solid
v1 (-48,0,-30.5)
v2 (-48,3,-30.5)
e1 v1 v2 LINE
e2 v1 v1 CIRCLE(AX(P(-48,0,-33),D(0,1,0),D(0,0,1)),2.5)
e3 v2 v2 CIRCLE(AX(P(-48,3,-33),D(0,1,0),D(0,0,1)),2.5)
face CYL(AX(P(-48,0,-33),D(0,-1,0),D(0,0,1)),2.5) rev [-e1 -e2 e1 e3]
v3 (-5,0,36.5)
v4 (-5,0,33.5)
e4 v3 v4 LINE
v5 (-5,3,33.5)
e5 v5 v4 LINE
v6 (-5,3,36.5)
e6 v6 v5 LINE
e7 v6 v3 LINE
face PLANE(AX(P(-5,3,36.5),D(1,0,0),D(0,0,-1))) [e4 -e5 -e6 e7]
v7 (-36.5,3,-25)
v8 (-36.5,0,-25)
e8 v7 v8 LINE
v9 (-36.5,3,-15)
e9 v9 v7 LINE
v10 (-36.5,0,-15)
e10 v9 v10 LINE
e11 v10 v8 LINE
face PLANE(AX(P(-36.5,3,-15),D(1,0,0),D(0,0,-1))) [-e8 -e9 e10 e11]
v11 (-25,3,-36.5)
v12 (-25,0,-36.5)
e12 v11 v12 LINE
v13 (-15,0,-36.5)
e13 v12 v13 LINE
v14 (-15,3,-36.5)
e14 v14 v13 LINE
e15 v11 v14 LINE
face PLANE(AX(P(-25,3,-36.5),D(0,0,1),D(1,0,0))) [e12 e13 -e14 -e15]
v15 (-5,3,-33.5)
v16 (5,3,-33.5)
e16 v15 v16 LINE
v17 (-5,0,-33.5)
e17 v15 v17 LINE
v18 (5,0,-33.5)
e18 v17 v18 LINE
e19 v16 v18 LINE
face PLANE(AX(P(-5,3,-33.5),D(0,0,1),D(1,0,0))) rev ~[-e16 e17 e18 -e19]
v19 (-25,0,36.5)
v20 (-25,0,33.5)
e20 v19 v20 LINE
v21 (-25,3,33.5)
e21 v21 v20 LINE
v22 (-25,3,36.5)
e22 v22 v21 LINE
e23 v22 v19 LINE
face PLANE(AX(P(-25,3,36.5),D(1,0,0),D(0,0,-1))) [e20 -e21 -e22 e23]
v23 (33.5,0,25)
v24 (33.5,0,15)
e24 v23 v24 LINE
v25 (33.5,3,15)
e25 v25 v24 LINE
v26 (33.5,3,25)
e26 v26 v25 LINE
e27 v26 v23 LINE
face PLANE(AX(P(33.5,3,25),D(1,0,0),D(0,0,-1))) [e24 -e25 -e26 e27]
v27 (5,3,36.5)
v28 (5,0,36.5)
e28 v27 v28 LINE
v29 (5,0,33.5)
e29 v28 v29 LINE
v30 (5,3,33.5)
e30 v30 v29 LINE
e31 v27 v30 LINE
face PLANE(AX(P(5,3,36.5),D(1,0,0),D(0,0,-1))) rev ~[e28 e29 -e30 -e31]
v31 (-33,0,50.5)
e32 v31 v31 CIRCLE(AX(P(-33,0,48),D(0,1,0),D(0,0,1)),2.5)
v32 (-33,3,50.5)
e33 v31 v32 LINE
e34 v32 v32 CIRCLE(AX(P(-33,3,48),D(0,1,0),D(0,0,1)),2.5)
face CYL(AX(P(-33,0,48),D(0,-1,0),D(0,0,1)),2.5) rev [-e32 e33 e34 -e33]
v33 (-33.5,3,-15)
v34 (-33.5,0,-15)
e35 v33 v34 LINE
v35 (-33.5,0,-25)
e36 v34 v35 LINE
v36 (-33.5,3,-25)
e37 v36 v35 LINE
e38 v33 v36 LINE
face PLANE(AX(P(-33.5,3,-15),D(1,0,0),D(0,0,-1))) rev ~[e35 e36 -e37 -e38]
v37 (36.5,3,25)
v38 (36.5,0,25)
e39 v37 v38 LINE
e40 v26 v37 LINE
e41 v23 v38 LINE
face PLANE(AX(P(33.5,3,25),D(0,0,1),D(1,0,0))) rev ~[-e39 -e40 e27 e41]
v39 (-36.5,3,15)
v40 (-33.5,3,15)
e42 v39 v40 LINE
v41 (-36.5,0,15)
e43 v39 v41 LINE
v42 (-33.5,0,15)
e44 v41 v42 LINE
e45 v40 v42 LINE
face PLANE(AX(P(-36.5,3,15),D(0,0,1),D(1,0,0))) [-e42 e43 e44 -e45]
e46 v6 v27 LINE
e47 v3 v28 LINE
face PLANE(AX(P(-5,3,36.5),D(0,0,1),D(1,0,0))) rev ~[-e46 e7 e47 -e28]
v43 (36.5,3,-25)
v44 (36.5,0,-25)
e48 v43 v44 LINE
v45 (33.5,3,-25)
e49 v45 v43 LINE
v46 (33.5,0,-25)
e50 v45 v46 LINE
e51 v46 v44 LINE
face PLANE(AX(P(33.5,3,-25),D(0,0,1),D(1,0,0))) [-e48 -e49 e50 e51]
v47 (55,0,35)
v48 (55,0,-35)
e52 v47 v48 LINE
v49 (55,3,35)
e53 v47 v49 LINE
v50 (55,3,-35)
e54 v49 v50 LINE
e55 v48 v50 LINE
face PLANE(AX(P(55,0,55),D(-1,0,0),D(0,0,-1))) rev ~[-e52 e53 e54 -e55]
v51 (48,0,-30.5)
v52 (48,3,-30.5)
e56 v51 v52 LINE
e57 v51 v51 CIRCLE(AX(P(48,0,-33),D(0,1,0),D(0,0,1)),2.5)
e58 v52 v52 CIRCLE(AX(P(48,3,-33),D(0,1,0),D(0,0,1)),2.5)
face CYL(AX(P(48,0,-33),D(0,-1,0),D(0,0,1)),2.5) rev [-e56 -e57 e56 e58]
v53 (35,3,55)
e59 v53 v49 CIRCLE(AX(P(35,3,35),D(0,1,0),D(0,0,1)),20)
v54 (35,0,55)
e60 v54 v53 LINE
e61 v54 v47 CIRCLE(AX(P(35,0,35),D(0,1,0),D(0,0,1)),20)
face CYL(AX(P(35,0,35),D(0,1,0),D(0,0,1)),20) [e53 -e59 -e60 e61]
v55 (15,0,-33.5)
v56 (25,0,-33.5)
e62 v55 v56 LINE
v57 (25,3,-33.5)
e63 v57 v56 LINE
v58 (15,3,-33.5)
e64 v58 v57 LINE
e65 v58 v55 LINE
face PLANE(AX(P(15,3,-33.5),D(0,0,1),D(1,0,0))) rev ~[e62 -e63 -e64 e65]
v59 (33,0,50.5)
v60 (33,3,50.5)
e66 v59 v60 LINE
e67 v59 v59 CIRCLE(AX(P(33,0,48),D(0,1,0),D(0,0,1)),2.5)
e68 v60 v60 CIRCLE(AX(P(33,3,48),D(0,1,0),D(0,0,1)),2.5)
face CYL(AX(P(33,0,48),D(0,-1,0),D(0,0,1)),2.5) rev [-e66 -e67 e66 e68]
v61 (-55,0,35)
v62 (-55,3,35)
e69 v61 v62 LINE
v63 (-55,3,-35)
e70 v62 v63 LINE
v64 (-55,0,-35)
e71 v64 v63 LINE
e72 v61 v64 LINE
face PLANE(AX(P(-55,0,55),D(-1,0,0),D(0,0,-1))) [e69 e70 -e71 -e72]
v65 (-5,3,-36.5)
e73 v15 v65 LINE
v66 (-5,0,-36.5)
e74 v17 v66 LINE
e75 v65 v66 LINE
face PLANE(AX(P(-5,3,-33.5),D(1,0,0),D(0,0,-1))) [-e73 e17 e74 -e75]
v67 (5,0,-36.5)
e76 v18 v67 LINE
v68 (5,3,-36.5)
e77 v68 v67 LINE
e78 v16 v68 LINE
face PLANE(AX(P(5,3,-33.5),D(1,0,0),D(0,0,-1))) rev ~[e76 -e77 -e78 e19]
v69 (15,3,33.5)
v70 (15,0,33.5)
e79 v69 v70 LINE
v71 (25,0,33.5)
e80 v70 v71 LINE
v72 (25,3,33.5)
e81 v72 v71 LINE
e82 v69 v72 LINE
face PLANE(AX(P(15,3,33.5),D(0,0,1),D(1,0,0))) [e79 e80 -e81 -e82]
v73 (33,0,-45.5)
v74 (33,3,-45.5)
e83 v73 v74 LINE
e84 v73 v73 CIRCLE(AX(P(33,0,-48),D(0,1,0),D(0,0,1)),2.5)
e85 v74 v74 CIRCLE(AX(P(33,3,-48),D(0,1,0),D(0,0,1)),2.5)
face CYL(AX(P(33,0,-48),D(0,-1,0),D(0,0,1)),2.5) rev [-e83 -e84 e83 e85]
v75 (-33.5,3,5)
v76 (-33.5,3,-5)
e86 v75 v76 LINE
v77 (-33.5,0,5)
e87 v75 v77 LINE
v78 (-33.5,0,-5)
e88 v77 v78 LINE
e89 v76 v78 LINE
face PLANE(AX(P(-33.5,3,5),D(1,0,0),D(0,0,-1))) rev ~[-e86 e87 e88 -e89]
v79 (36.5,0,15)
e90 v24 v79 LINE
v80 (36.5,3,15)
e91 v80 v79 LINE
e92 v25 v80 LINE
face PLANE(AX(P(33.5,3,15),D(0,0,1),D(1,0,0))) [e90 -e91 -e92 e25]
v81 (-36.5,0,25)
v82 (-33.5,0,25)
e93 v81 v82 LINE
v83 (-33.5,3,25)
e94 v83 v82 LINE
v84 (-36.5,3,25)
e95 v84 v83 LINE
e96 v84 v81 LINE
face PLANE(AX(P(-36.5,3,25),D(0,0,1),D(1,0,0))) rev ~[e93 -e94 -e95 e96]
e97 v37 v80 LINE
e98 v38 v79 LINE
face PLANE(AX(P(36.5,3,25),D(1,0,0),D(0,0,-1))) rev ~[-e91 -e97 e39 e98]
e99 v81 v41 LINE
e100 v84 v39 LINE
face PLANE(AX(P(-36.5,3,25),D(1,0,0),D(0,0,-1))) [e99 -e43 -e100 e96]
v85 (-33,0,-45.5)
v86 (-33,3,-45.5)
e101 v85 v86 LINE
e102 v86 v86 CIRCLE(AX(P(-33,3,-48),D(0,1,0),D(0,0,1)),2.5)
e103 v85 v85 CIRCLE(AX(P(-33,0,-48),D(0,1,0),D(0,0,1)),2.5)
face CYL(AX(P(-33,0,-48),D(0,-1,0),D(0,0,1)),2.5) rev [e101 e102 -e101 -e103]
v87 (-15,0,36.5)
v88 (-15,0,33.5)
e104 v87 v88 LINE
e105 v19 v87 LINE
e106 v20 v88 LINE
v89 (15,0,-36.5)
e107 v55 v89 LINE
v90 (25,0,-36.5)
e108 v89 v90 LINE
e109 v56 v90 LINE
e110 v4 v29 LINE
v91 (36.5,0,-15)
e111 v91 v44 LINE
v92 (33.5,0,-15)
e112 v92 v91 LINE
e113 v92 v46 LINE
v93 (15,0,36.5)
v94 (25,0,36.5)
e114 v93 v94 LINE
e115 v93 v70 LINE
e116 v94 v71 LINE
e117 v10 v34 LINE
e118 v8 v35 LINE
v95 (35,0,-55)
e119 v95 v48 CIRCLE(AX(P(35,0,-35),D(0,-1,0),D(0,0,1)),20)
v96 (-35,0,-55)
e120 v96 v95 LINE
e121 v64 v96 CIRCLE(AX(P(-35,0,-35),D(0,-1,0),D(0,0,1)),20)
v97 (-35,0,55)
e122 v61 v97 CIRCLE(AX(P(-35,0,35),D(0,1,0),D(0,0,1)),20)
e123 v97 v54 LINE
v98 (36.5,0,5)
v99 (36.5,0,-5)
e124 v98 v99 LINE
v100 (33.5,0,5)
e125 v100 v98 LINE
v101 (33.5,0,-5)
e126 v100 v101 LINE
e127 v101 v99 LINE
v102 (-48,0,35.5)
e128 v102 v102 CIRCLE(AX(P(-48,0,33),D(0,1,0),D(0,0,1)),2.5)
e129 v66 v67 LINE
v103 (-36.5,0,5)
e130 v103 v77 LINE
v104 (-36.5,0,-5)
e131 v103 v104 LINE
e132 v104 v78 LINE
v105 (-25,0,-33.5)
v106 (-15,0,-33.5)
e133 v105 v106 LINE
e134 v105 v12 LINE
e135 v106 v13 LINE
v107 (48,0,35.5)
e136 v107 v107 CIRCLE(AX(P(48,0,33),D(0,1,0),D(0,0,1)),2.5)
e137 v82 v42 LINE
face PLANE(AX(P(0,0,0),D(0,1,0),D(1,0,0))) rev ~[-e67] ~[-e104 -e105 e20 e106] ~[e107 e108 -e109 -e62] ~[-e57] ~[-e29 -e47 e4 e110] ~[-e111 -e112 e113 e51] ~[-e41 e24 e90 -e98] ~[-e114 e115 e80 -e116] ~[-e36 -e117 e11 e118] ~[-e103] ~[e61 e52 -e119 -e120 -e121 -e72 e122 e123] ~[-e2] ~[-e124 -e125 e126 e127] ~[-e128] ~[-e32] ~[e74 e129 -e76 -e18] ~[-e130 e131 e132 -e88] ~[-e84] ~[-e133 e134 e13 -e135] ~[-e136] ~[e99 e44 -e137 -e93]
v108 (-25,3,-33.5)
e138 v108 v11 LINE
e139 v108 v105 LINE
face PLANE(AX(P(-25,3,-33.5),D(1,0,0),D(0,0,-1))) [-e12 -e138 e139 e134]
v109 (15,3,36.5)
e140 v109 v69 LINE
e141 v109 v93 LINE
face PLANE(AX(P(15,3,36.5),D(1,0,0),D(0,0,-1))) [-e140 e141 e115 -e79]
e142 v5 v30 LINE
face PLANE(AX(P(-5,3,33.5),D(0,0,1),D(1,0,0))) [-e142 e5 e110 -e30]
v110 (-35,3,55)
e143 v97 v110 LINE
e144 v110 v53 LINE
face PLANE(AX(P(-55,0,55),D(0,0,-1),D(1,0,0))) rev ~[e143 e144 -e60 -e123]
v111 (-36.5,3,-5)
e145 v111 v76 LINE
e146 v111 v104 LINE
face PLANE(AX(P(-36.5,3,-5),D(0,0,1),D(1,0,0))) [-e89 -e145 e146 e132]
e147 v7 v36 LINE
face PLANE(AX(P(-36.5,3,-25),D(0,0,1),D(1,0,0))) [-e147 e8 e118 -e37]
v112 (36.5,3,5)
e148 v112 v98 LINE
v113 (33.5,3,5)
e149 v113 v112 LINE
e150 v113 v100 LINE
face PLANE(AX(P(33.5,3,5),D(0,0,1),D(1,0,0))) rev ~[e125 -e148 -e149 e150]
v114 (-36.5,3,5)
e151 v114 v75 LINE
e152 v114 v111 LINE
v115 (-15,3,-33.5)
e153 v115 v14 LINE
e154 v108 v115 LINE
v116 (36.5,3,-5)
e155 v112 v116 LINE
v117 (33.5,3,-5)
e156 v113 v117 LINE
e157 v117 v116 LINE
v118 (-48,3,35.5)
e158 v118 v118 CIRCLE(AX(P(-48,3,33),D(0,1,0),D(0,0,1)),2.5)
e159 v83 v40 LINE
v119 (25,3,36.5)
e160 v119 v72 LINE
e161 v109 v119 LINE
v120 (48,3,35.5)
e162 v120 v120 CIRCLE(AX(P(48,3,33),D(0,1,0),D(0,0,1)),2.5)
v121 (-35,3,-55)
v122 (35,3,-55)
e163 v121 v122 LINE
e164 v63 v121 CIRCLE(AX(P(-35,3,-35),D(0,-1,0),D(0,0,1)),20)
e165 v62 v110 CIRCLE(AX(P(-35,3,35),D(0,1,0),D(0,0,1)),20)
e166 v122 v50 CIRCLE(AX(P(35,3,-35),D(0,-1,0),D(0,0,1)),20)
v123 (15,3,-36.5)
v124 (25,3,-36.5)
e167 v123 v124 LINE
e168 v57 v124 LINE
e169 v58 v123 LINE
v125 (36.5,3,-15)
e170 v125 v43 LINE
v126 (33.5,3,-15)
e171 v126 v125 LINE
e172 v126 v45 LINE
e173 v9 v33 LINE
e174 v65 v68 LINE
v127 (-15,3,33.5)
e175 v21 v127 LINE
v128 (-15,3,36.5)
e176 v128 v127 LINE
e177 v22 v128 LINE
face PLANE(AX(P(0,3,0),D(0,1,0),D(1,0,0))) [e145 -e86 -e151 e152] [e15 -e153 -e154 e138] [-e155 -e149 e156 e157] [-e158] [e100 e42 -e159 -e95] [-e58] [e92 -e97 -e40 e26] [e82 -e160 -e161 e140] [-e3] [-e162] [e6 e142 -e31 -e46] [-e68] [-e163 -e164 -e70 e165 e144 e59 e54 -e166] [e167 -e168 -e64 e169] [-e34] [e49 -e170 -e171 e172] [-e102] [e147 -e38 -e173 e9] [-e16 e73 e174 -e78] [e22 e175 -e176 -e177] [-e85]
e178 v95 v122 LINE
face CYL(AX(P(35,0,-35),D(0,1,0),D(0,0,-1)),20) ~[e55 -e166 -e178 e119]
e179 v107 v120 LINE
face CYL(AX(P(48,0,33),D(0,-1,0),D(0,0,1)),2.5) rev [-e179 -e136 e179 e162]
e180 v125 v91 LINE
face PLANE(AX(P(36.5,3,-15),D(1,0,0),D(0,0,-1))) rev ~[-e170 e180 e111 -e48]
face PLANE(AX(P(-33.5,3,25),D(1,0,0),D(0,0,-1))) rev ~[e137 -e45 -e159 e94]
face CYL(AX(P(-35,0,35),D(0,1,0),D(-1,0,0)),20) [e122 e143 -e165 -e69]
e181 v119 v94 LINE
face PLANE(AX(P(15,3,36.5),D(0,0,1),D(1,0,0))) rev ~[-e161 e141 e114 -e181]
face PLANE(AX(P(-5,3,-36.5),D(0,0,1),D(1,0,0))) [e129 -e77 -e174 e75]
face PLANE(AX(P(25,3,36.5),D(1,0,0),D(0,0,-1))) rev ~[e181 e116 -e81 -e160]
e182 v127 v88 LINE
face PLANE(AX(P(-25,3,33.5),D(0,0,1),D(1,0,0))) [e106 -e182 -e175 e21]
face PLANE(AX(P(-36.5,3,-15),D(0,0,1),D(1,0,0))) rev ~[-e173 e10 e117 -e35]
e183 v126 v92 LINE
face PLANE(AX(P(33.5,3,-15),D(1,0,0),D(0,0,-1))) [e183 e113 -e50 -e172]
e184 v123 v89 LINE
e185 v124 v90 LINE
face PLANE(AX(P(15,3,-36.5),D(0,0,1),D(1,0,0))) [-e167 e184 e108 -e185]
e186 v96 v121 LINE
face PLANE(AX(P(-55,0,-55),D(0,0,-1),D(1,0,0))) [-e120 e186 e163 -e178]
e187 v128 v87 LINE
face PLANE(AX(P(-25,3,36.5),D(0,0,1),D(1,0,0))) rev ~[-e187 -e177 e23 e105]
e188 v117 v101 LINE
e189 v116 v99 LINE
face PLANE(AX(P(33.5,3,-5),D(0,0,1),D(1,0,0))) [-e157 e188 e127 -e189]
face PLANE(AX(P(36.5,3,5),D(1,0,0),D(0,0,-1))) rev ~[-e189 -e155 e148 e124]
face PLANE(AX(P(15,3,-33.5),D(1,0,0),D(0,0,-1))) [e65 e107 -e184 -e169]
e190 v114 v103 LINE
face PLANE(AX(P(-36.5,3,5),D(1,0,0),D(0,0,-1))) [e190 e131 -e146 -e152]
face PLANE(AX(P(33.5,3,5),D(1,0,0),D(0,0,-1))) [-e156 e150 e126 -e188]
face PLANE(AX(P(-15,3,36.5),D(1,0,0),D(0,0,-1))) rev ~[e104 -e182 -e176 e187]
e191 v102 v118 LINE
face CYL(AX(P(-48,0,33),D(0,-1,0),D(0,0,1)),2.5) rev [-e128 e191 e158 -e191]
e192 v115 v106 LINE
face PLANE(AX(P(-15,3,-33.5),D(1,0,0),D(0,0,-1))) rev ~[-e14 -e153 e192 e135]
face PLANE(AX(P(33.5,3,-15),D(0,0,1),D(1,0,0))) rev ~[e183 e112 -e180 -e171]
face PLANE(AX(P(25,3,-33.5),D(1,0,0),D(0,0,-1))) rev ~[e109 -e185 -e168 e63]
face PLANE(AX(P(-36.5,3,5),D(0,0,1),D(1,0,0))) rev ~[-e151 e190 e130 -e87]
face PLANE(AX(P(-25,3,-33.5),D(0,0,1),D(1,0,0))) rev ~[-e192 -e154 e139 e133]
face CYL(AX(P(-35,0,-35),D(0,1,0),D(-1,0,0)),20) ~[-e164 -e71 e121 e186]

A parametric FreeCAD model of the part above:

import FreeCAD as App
import Part
import Sketcher
from FreeCAD import Vector


def edges_at(feature, points):
    """Names of the edges that pass closest to the given points."""
    edges = feature.Shape.Edges
    near = lambda p: min(range(len(edges)), key=lambda i: edges[i].distToShape(Part.Vertex(*p))[0])
    return sorted({f"Edge{near(p) + 1}" for p in points})


def add_polygon(sketch, points):
    """Adds a closed chain of lines whose ends are joined by coincident constraints."""
    first, n = sketch.GeometryCount, len(points)
    for a, b in zip(points, points[1:] + points[:1]):
        sketch.addGeometry(Part.LineSegment(App.Vector(*a, 0), App.Vector(*b, 0)), False)
    for i in range(n):
        sketch.addConstraint(Sketcher.Constraint("Coincident", first + i, 2, first + (i + 1) % n, 1))

doc = App.newDocument("Part")
body = doc.addObject("PartDesign::Body", "Body")

# Sketch on XZ plane
sketch1 = body.newObject("Sketcher::SketchObject", "Sketch")
sketch1.AttachmentSupport = (doc.getObject("XZ_Plane"), [""])
sketch1.MapMode = "FlatFace"
add_polygon(sketch1, [(-55, -55), (-55, 55), (55, 55), (55, -55)])  # lines 0-3
sketch1.addGeometry(Part.Circle(Vector(-33, 48, 0), Vector(0, 0, 1), 2.5), False)  # 4
sketch1.addGeometry(Part.Circle(Vector(-48, 33, 0), Vector(0, 0, 1), 2.5), False)  # 5
sketch1.addGeometry(Part.Circle(Vector(33, 48, 0), Vector(0, 0, 1), 2.5), False)  # 6
sketch1.addGeometry(Part.Circle(Vector(48, 33, 0), Vector(0, 0, 1), 2.5), False)  # 7
sketch1.addGeometry(Part.Circle(Vector(-48, -33, 0), Vector(0, 0, 1), 2.5), False)  # 8
sketch1.addGeometry(Part.Circle(Vector(-33, -48, 0), Vector(0, 0, 1), 2.5), False)  # 9
sketch1.addGeometry(Part.Circle(Vector(48, -33, 0), Vector(0, 0, 1), 2.5), False)  # 10
sketch1.addGeometry(Part.Circle(Vector(33, -48, 0), Vector(0, 0, 1), 2.5), False)  # 11
sketch1.addConstraint([
    Sketcher.Constraint("Vertical", 0),
    Sketcher.Constraint("Horizontal", 1),
    Sketcher.Constraint("Vertical", 2),
    Sketcher.Constraint("Horizontal", 3),
    Sketcher.Constraint("Equal", 4, 5),
    Sketcher.Constraint("Equal", 5, 6),
    Sketcher.Constraint("Equal", 6, 7),
    Sketcher.Constraint("Equal", 7, 8),
    Sketcher.Constraint("Equal", 8, 9),
    Sketcher.Constraint("Equal", 9, 10),
    Sketcher.Constraint("Equal", 10, 11),
    Sketcher.Constraint("Symmetric", 7, 3, 8, 3, -1, 1),
    Sketcher.Constraint("Symmetric", 6, 3, 9, 3, -1, 1),
    Sketcher.Constraint("Symmetric", 5, 3, 10, 3, -1, 1),
    Sketcher.Constraint("Symmetric", 4, 3, 11, 3, -1, 1),
    Sketcher.Constraint("Symmetric", 0, 2, 2, 2, -1, 1),
    Sketcher.Constraint("Symmetric", 4, 3, 6, 3, -2),
    Sketcher.Constraint("Symmetric", 5, 3, 7, 3, -2),
    Sketcher.Constraint("Equal", 3, 0),
    Sketcher.Constraint("Diameter", 4, 5.0),
    Sketcher.Constraint("DistanceX", 1, 1, 1, 2, 110.0),
    Sketcher.Constraint("DistanceX", 4, 3, -1, 1, 33.0),
    Sketcher.Constraint("DistanceY", -1, 1, 4, 3, 48.0),
    Sketcher.Constraint("DistanceX", 5, 3, -1, 1, 48.0),
    Sketcher.Constraint("DistanceY", -1, 1, 5, 3, 33.0),
])
pad1 = body.newObject("PartDesign::Pad", "Pad")
pad1.Profile = sketch1
pad1.Length = 3
pad1.Reversed = True
doc.recompute()

fillet = body.newObject("PartDesign::Fillet", "Fillet")
fillet.Base = (pad1, edges_at(pad1, [
    (55, 1.5, 55),
    (-55, 1.5, 55),
    (-55, 1.5, -55),
    (55, 1.5, -55),
]))
fillet.Radius = 20

# Sketch on XZ plane
sketch2 = body.newObject("Sketcher::SketchObject", "Sketch001")
sketch2.AttachmentSupport = (doc.getObject("XZ_Plane"), [""])
sketch2.MapMode = "FlatFace"
sketch2.AttachmentOffset = App.Placement(Vector(0, 0, -3), App.Rotation())
add_polygon(sketch2, [(-36.5, 15), (-36.5, 25), (-33.5, 25), (-33.5, 15)])  # lines 0-3
add_polygon(sketch2, [(-36.5, -5), (-36.5, 5), (-33.5, 5), (-33.5, -5)])  # lines 4-7
add_polygon(sketch2, [(-25, -36.5), (-25, -33.5), (-15, -33.5), (-15, -36.5)])  # lines 8-11
add_polygon(sketch2, [(-5, -36.5), (-5, -33.5), (5, -33.5), (5, -36.5)])  # lines 12-15
add_polygon(sketch2, [(15, -36.5), (15, -33.5), (25, -33.5), (25, -36.5)])  # lines 16-19
add_polygon(sketch2, [(33.5, -25), (33.5, -15), (36.5, -15), (36.5, -25)])  # lines 20-23
add_polygon(sketch2, [(33.5, -5), (33.5, 5), (36.5, 5), (36.5, -5)])  # lines 24-27
add_polygon(sketch2, [(33.5, 15), (33.5, 25), (36.5, 25), (36.5, 15)])  # lines 28-31
add_polygon(sketch2, [(15, 33.5), (15, 36.5), (25, 36.5), (25, 33.5)])  # lines 32-35
add_polygon(sketch2, [(-5, 33.5), (-5, 36.5), (5, 36.5), (5, 33.5)])  # lines 36-39
add_polygon(sketch2, [(-25, 33.5), (-25, 36.5), (-15, 36.5), (-15, 33.5)])  # lines 40-43
add_polygon(sketch2, [(-36.5, -25), (-36.5, -15), (-33.5, -15), (-33.5, -25)])  # lines 44-47
sketch2.addConstraint([
    Sketcher.Constraint("Vertical", 0),
    Sketcher.Constraint("Horizontal", 1),
    Sketcher.Constraint("Vertical", 2),
    Sketcher.Constraint("Horizontal", 3),
    Sketcher.Constraint("Vertical", 4),
    Sketcher.Constraint("Horizontal", 5),
    Sketcher.Constraint("Vertical", 6),
    Sketcher.Constraint("Horizontal", 7),
    Sketcher.Constraint("Vertical", 8),
    Sketcher.Constraint("Horizontal", 9),
    Sketcher.Constraint("Vertical", 10),
    Sketcher.Constraint("Horizontal", 11),
    Sketcher.Constraint("Vertical", 12),
    Sketcher.Constraint("Horizontal", 13),
    Sketcher.Constraint("Vertical", 14),
    Sketcher.Constraint("Horizontal", 15),
    Sketcher.Constraint("Vertical", 16),
    Sketcher.Constraint("Horizontal", 17),
    Sketcher.Constraint("Vertical", 18),
    Sketcher.Constraint("Horizontal", 19),
    Sketcher.Constraint("Vertical", 20),
    Sketcher.Constraint("Horizontal", 21),
    Sketcher.Constraint("Vertical", 22),
    Sketcher.Constraint("Horizontal", 23),
    Sketcher.Constraint("Vertical", 24),
    Sketcher.Constraint("Horizontal", 25),
    Sketcher.Constraint("Vertical", 26),
    Sketcher.Constraint("Horizontal", 27),
    Sketcher.Constraint("Vertical", 28),
    Sketcher.Constraint("Horizontal", 29),
    Sketcher.Constraint("Vertical", 30),
    Sketcher.Constraint("Horizontal", 31),
    Sketcher.Constraint("Vertical", 32),
    Sketcher.Constraint("Horizontal", 33),
    Sketcher.Constraint("Vertical", 34),
    Sketcher.Constraint("Horizontal", 35),
    Sketcher.Constraint("Vertical", 36),
    Sketcher.Constraint("Horizontal", 37),
    Sketcher.Constraint("Vertical", 38),
    Sketcher.Constraint("Horizontal", 39),
    Sketcher.Constraint("Vertical", 40),
    Sketcher.Constraint("Horizontal", 41),
    Sketcher.Constraint("Vertical", 42),
    Sketcher.Constraint("Horizontal", 43),
    Sketcher.Constraint("Vertical", 44),
    Sketcher.Constraint("Horizontal", 45),
    Sketcher.Constraint("Vertical", 46),
    Sketcher.Constraint("Horizontal", 47),
    Sketcher.Constraint("Symmetric", 2, 2, 20, 2, -1, 1),
    Sketcher.Constraint("Symmetric", 0, 2, 22, 2, -1, 1),
    Sketcher.Constraint("Symmetric", 6, 2, 24, 2, -1, 1),
    Sketcher.Constraint("Symmetric", 4, 2, 26, 2, -1, 1),
    Sketcher.Constraint("Symmetric", 10, 2, 32, 2, -1, 1),
    Sketcher.Constraint("Symmetric", 8, 2, 34, 2, -1, 1),
    Sketcher.Constraint("Symmetric", 14, 2, 36, 2, -1, 1),
    Sketcher.Constraint("Symmetric", 12, 2, 38, 2, -1, 1),
    Sketcher.Constraint("Symmetric", 18, 2, 40, 2, -1, 1),
    Sketcher.Constraint("Symmetric", 16, 2, 42, 2, -1, 1),
    Sketcher.Constraint("Symmetric", 30, 2, 44, 2, -1, 1),
    Sketcher.Constraint("Symmetric", 28, 2, 46, 2, -1, 1),
    Sketcher.Constraint("Symmetric", 9, 2, 16, 2, -2),
    Sketcher.Constraint("Symmetric", 11, 2, 18, 2, -2),
    Sketcher.Constraint("Symmetric", 1, 2, 28, 2, -2),
    Sketcher.Constraint("Symmetric", 3, 2, 30, 2, -2),
    Sketcher.Constraint("Horizontal", 9, 2, 12, 2),
    Sketcher.Constraint("Horizontal", 11, 2, 14, 2),
    Sketcher.Constraint("Horizontal", 5, 2, 24, 2),
    Sketcher.Constraint("Vertical", 3, 2, 4, 2),
    Sketcher.Constraint("Vertical", 2, 2, 5, 2),
    Sketcher.Constraint("Vertical", 15, 2, 36, 2),
    Sketcher.Constraint("Equal", 11, 13),
    Sketcher.Constraint("Equal", 43, 0),
    Sketcher.Constraint("Equal", 2, 4),
    Sketcher.Constraint("Equal", 47, 8),
    Sketcher.Constraint("DistanceX", 1, 1, 1, 2, 3.0),
    Sketcher.Constraint("DistanceX", 9, 1, 9, 2, 10.0),
    Sketcher.Constraint("DistanceY", -1, 1, 0, 2, 25.0),
    Sketcher.Constraint("DistanceX", 8, 2, -1, 1, 25.0),
    Sketcher.Constraint("DistanceX", 0, 2, -1, 1, 36.5),
    Sketcher.Constraint("DistanceY", 8, 2, -1, 1, 33.5),
])
pocket1 = body.newObject("PartDesign::Pocket", "Pocket")
pocket1.Profile = sketch2
pocket1.Type = "ThroughAll"
pocket1.Reversed = True

doc.recompute()
